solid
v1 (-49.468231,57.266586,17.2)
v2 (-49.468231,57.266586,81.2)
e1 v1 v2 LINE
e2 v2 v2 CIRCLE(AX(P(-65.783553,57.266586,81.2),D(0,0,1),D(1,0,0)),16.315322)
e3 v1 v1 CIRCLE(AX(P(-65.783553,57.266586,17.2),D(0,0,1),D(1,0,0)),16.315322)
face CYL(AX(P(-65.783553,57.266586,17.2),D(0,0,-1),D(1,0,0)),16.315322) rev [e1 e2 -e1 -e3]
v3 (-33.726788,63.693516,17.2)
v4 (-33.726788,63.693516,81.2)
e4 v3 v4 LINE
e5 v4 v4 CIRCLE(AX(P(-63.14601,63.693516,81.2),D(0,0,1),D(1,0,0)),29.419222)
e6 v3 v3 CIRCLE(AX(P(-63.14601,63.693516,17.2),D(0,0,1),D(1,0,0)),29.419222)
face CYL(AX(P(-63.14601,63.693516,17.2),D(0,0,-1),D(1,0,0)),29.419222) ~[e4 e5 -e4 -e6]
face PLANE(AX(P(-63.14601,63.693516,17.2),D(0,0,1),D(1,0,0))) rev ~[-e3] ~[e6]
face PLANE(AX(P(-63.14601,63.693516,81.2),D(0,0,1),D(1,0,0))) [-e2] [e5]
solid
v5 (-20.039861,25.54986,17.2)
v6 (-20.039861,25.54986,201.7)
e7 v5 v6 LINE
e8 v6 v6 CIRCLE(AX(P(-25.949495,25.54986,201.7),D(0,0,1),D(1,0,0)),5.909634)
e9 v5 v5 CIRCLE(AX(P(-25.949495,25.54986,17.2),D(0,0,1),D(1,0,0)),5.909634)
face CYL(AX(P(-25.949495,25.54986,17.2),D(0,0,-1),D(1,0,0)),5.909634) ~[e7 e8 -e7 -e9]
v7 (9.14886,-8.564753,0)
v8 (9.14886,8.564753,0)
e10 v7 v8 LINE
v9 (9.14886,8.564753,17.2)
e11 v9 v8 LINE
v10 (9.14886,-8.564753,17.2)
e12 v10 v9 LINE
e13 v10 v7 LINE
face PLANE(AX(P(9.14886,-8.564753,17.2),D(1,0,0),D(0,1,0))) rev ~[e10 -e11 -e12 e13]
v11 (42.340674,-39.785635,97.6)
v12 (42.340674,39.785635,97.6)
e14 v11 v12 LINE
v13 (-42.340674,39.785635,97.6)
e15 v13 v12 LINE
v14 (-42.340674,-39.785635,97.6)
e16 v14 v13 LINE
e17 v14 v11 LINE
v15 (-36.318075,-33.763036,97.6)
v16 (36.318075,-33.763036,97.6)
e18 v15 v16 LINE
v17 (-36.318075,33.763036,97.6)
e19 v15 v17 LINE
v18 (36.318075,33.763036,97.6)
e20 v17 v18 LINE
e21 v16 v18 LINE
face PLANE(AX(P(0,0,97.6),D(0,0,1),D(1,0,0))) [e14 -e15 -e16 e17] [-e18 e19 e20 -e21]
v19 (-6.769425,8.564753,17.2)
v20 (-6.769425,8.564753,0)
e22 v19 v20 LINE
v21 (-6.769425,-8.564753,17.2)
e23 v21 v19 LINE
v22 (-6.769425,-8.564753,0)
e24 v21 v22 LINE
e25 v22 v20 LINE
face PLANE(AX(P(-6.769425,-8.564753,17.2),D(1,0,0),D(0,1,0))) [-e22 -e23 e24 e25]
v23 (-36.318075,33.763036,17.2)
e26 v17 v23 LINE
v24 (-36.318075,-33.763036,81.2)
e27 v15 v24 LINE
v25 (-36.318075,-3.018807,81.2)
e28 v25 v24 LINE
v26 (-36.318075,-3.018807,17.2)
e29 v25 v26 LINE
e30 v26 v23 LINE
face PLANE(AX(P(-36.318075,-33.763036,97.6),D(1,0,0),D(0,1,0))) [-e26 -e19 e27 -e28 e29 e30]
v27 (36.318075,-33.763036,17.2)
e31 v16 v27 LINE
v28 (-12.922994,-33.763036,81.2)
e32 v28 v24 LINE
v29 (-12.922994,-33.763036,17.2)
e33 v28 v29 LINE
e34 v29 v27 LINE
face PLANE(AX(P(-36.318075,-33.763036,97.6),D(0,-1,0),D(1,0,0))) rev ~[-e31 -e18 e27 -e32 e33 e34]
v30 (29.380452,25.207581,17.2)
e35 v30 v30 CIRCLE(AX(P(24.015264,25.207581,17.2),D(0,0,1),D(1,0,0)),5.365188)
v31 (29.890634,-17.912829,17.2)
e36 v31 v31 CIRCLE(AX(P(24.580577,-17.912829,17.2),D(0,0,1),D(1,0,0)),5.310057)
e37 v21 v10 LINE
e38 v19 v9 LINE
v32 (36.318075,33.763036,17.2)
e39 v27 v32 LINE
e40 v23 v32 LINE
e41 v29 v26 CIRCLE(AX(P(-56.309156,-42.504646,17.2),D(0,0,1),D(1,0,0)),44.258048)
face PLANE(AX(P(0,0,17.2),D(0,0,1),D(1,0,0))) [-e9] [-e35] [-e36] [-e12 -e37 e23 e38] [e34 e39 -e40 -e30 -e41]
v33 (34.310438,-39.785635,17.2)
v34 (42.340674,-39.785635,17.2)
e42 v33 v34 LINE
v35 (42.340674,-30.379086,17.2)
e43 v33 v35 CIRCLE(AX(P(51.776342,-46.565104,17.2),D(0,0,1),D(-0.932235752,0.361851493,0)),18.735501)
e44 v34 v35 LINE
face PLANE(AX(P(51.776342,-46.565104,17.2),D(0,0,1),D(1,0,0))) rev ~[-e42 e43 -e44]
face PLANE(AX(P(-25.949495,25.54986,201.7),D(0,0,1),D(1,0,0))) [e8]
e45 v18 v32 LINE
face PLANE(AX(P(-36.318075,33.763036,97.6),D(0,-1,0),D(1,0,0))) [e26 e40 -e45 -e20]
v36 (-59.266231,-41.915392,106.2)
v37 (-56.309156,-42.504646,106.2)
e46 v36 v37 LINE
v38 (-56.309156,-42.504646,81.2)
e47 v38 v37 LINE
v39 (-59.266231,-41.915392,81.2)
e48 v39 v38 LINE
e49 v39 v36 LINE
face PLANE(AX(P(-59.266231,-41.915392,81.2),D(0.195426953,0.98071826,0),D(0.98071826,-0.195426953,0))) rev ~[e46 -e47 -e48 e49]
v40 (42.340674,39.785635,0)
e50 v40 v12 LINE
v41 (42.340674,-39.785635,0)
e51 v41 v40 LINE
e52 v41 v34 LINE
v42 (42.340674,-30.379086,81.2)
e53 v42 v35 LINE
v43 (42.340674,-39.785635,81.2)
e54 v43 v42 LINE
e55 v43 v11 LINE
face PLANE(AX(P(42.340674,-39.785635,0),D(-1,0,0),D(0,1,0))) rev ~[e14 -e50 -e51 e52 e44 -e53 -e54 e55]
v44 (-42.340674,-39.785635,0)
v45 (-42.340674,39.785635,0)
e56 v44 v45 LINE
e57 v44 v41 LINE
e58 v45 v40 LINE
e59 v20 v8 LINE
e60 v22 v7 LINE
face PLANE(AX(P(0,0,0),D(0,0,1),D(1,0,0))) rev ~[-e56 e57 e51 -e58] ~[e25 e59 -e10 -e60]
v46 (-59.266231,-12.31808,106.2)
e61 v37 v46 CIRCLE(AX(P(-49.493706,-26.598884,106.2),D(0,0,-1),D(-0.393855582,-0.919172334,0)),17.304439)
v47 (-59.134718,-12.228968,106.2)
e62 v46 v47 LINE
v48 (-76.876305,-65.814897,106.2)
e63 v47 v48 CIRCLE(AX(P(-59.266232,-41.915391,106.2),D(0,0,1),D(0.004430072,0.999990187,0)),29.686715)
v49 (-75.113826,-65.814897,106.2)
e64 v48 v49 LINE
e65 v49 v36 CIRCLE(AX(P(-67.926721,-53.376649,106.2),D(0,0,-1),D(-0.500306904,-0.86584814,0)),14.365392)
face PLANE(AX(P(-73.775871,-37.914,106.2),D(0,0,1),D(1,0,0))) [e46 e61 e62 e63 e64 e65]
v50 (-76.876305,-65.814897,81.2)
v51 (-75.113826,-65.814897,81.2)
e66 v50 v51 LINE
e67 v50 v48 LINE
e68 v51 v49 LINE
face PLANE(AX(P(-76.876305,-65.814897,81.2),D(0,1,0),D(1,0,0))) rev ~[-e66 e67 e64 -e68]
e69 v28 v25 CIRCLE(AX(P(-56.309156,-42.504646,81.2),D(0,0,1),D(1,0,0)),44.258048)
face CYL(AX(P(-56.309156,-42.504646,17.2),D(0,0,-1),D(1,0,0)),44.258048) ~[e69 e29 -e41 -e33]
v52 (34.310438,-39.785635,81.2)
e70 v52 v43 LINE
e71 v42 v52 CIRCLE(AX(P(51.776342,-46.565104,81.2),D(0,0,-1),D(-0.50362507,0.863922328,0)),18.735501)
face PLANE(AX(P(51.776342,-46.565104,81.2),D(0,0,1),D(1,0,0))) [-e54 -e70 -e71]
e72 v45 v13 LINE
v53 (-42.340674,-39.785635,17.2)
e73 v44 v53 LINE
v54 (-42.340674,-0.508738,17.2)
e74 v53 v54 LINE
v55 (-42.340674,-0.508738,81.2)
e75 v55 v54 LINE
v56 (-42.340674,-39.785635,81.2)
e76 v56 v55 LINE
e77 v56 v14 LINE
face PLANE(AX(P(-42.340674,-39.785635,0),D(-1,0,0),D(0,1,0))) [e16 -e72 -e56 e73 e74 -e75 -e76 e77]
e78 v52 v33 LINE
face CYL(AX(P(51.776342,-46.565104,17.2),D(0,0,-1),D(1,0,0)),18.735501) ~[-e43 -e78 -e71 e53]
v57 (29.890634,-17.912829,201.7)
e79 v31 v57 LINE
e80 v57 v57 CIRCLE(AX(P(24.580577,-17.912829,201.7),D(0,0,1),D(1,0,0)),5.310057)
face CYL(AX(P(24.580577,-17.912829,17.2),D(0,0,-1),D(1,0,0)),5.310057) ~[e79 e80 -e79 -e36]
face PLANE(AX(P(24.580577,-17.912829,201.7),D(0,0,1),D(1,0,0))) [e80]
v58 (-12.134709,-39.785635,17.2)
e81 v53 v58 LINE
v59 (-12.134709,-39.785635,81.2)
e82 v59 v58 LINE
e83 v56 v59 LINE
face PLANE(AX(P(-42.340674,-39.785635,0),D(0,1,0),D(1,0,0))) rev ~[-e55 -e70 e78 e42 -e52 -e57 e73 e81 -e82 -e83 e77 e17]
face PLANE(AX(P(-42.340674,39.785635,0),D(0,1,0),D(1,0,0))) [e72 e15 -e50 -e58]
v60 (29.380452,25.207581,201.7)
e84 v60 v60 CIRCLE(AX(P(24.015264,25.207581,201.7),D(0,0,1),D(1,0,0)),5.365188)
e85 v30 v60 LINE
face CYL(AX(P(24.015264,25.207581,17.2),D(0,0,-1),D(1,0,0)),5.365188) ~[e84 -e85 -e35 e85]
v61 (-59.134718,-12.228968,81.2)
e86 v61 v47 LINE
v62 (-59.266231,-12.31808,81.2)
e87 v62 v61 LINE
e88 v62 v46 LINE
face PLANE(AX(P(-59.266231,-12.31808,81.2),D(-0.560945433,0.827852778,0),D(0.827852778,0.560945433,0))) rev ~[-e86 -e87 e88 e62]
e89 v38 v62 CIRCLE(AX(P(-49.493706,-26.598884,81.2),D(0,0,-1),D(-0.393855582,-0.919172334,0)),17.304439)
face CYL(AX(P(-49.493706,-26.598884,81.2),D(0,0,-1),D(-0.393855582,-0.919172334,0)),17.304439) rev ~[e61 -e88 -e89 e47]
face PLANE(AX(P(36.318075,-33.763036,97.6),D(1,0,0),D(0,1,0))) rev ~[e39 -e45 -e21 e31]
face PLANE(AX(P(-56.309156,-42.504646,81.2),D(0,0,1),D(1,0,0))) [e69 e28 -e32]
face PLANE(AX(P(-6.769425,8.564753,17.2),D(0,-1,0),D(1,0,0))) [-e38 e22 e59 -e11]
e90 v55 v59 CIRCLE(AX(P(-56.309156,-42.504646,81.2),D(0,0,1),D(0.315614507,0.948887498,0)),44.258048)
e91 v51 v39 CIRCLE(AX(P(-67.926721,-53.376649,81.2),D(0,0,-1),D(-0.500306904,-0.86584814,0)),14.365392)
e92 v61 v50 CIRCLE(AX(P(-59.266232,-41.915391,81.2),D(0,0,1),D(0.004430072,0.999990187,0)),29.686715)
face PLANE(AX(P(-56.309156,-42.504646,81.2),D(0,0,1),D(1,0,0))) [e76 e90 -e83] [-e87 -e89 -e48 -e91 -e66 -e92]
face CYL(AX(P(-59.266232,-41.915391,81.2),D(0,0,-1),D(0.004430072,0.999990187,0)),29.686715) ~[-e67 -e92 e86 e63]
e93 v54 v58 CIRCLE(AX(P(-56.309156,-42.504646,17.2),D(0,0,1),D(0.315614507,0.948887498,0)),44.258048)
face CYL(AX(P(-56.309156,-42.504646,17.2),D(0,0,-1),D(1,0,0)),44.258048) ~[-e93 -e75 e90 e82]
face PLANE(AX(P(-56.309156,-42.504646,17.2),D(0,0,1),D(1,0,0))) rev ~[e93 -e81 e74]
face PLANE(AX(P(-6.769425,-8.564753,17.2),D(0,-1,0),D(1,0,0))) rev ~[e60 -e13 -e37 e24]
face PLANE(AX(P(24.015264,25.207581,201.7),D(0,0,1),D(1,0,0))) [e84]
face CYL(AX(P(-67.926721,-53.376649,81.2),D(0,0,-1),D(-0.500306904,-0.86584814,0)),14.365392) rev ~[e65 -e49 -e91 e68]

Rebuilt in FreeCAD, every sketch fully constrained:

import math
import FreeCAD as App
import Part
import Sketcher

V = App.Vector
Q = App.Units.Quantity


def add_polygon(sketch, points):
    """Adds a closed chain of lines whose ends are joined by coincident constraints."""
    first, n = sketch.GeometryCount, len(points)
    for a, b in zip(points, points[1:] + points[:1]):
        sketch.addGeometry(Part.LineSegment(App.Vector(*a, 0), App.Vector(*b, 0)), False)
    for i in range(n):
        sketch.addConstraint(Sketcher.Constraint("Coincident", first + i, 2, first + (i + 1) % n, 1))

doc = App.newDocument("Part")
body = doc.addObject("PartDesign::Body", "Body")
body.AllowCompound = True

# Sketch on XY plane
sketch1 = body.newObject("Sketcher::SketchObject", "Sketch")
sketch1.AttachmentSupport = (doc.getObject("XY_Plane"), [""])
sketch1.MapMode = "FlatFace"
add_polygon(sketch1, [(-42.340674, 39.785635), (-42.340674, -39.785635), (42.340674, -39.785635), (42.340674, 39.785635)])  # lines 0-3
sketch1.addConstraint([
    Sketcher.Constraint("Vertical", 0),
    Sketcher.Constraint("Horizontal", 1),
    Sketcher.Constraint("Vertical", 2),
    Sketcher.Constraint("Horizontal", 3),
    Sketcher.Constraint("Symmetric", 0, 2, 2, 2, -1, 1),
    Sketcher.Constraint("DistanceX", 1, 1, 1, 2, Q("84.681348 mm")),
    Sketcher.Constraint("DistanceY", 0, 2, 0, 1, Q("79.57127 mm")),
])
pad1 = body.newObject("PartDesign::Pad", "Pad")
pad1.Profile = sketch1
pad1.Length = 97.6

# Sketch on XY plane
sketch2 = body.newObject("Sketcher::SketchObject", "Sketch001")
sketch2.AttachmentSupport = (doc.getObject("XY_Plane"), [""])
sketch2.MapMode = "FlatFace"
sketch2.AttachmentOffset = App.Placement(V(0, 0, 97.6), App.Rotation())
add_polygon(sketch2, [(-36.318075, 33.763036), (-36.318075, -33.763036), (36.318075, -33.763036), (36.318075, 33.763036)])  # lines 0-3
sketch2.addConstraint([
    Sketcher.Constraint("Vertical", 0),
    Sketcher.Constraint("Horizontal", 1),
    Sketcher.Constraint("Vertical", 2),
    Sketcher.Constraint("Horizontal", 3),
    Sketcher.Constraint("Symmetric", 0, 2, 2, 2, -1, 1),
    Sketcher.Constraint("DistanceX", 1, 1, 1, 2, Q("72.63615 mm")),
    Sketcher.Constraint("DistanceY", 0, 2, 0, 1, Q("67.526072 mm")),
])
pocket1 = body.newObject("PartDesign::Pocket", "Pocket")
pocket1.Profile = sketch2
pocket1.Length = 80.4

# Sketch on XY plane
sketch3 = body.newObject("Sketcher::SketchObject", "Sketch002")
sketch3.AttachmentSupport = (doc.getObject("XY_Plane"), [""])
sketch3.MapMode = "FlatFace"
sketch3.AttachmentOffset = App.Placement(V(0, 0, 17.2), App.Rotation())
add_polygon(sketch3, [(-6.769425, 8.564753), (-6.769425, -8.564753), (9.14886, -8.564753), (9.14886, 8.564753)])  # lines 0-3
sketch3.addConstraint([
    Sketcher.Constraint("Vertical", 0),
    Sketcher.Constraint("Horizontal", 1),
    Sketcher.Constraint("Vertical", 2),
    Sketcher.Constraint("Horizontal", 3),
    Sketcher.Constraint("DistanceX", 1, 1, 1, 2, Q("15.918285 mm")),
    Sketcher.Constraint("DistanceY", 0, 2, 0, 1, Q("17.129506 mm")),
    Sketcher.Constraint("DistanceX", -1, 1, 1, 2, Q("9.14886 mm")),
    Sketcher.Constraint("DistanceY", 0, 2, -1, 1, Q("8.564753 mm")),
])
pocket2 = body.newObject("PartDesign::Pocket", "Pocket001")
pocket2.Profile = sketch3
pocket2.Length = 25

# Sketch on XY plane
sketch4 = body.newObject("Sketcher::SketchObject", "Sketch003")
sketch4.AttachmentSupport = (doc.getObject("XY_Plane"), [""])
sketch4.MapMode = "FlatFace"
sketch4.AttachmentOffset = App.Placement(V(0, 0, 17.2), App.Rotation())
sketch4.addGeometry([
    Part.Circle(V(-63.14601, 63.693516, 0), V(0, 0, 1), 29.419222),
    Part.Circle(V(-65.783553, 57.266586, 0), V(0, 0, 1), 16.315322),
    Part.Circle(V(51.776342, -46.565104, 0), V(0, 0, 1), 18.735501),
    Part.Circle(V(-56.309156, -42.504646, 0), V(0, 0, 1), 44.258048),
], False)
sketch4.addConstraint([
    Sketcher.Constraint("Diameter", 0, Q("58.838444 mm")),
    Sketcher.Constraint("Diameter", 1, Q("32.630644 mm")),
    Sketcher.Constraint("Diameter", 2, Q("37.471002 mm")),
    Sketcher.Constraint("Diameter", 3, Q("88.516096 mm")),
    Sketcher.Constraint("DistanceX", 3, 3, 2, 3, Q("108.085498 mm")),
    Sketcher.Constraint("DistanceX", 0, 3, -1, 1, Q("63.14601 mm")),
    Sketcher.Constraint("DistanceY", 1, 3, 0, 3, Q("6.42693 mm")),
    Sketcher.Constraint("DistanceY", 2, 3, 1, 3, Q("103.83169 mm")),
    Sketcher.Constraint("DistanceX", 0, 3, 2, 3, Q("114.922352 mm")),
    Sketcher.Constraint("DistanceY", 3, 3, 1, 3, Q("99.771232 mm")),
    Sketcher.Constraint("DistanceY", -1, 1, 0, 3, Q("63.693516 mm")),
    Sketcher.Constraint("DistanceX", 1, 3, -1, 1, Q("65.783553 mm")),
])
pad2 = body.newObject("PartDesign::Pad", "Pad001")
pad2.Profile = sketch4
pad2.Length = 64

# Sketch on XY plane
sketch5 = body.newObject("Sketcher::SketchObject", "Sketch004")
sketch5.AttachmentSupport = (doc.getObject("XY_Plane"), [""])
sketch5.MapMode = "FlatFace"
sketch5.AttachmentOffset = App.Placement(V(0, 0, 81.2), App.Rotation())
sketch5.addGeometry([
    Part.LineSegment(V(-59.266231, -12.31808, 0), V(-59.134718, -12.228968, 0)),  # 0
    Part.ArcOfCircle(Part.Circle(V(-59.266232, -41.915391, 0), V(0, 0, 1), 29.686715), math.radians(89.746175), math.radians(233.615787)),  # 1
    Part.LineSegment(V(-76.876305, -65.814897, 0), V(-75.113826, -65.814897, 0)),  # 2
    Part.ArcOfCircle(Part.Circle(V(-67.926721, -53.376649, 0), V(0, 0, 1), 14.365392), math.radians(52.924146), math.radians(239.979693)),  # 3
    Part.LineSegment(V(-59.266231, -41.915392, 0), V(-56.309156, -42.504646, 0)),  # 4
    Part.ArcOfCircle(Part.Circle(V(-49.493706, -26.598884, 0), V(0, 0, 1), 17.304439), math.radians(124.384303), math.radians(246.805381)),  # 5
], False)
sketch5.addConstraint([
    Sketcher.Constraint("Coincident", 0, 2, 1, 1),
    Sketcher.Constraint("Coincident", 1, 2, 2, 1),
    Sketcher.Constraint("Coincident", 2, 2, 3, 2),
    Sketcher.Constraint("Coincident", 3, 1, 4, 1),
    Sketcher.Constraint("Coincident", 4, 2, 5, 2),
    Sketcher.Constraint("Coincident", 5, 1, 0, 1),
    Sketcher.Constraint("Horizontal", 2),
    Sketcher.Constraint("Coincident", 3, 1, 1, 3),
    Sketcher.Constraint("Vertical", 3, 1, 5, 1),
    Sketcher.Constraint("Radius", 5, Q("17.304439 mm")),
    Sketcher.Constraint("Radius", 1, Q("29.686715 mm")),
    Sketcher.Constraint("Radius", 3, Q("14.365392 mm")),
    Sketcher.Constraint("DistanceX", 2, 1, 2, 2, Q("1.762479 mm")),
    Sketcher.Constraint("DistanceX", 1, 2, 5, 3, Q("27.382599 mm")),
    Sketcher.Constraint("Distance", 0, Q("0.15886 mm")),
    Sketcher.Constraint("DistanceY", 1, 3, -1, 1, Q("41.915391 mm")),
    Sketcher.Constraint("DistanceX", 3, 3, -1, 1, Q("67.926721 mm")),
    Sketcher.Constraint("DistanceY", 3, 3, -1, 1, Q("53.376649 mm")),
    Sketcher.Constraint("DistanceY", 5, 1, -1, 1, Q("12.31808 mm")),
    Sketcher.Constraint("DistanceX", 4, 2, 5, 3, Q("6.81545 mm")),
])
pad3 = body.newObject("PartDesign::Pad", "Pad002")
pad3.Profile = sketch5
pad3.Length = 25

# Sketch on XY plane
sketch6 = body.newObject("Sketcher::SketchObject", "Sketch005")
sketch6.AttachmentSupport = (doc.getObject("XY_Plane"), [""])
sketch6.MapMode = "FlatFace"
sketch6.AttachmentOffset = App.Placement(V(0, 0, 17.2), App.Rotation())
sketch6.addGeometry([
    Part.Circle(V(-25.949495, 25.54986, 0), V(0, 0, 1), 5.909634),
    Part.Circle(V(24.015264, 25.207581, 0), V(0, 0, 1), 5.365188),
    Part.Circle(V(24.580577, -17.912829, 0), V(0, 0, 1), 5.310057),
], False)
sketch6.addConstraint([
    Sketcher.Constraint("Diameter", 0, Q("11.819268 mm")),
    Sketcher.Constraint("Diameter", 1, Q("10.730376 mm")),
    Sketcher.Constraint("Diameter", 2, Q("10.620114 mm")),
    Sketcher.Constraint("DistanceY", -1, 1, 0, 3, Q("25.54986 mm")),
    Sketcher.Constraint("DistanceY", -1, 1, 1, 3, Q("25.207581 mm")),
    Sketcher.Constraint("DistanceY", 2, 3, -1, 1, Q("17.912829 mm")),
    Sketcher.Constraint("DistanceX", 0, 3, 1, 3, Q("49.964759 mm")),
    Sketcher.Constraint("DistanceX", 0, 3, -1, 1, Q("25.949495 mm")),
    Sketcher.Constraint("DistanceX", -1, 1, 2, 3, Q("24.580577 mm")),
])
pad4 = body.newObject("PartDesign::Pad", "Pad003")
pad4.Profile = sketch6
pad4.Length = 184.5

doc.recompute()
